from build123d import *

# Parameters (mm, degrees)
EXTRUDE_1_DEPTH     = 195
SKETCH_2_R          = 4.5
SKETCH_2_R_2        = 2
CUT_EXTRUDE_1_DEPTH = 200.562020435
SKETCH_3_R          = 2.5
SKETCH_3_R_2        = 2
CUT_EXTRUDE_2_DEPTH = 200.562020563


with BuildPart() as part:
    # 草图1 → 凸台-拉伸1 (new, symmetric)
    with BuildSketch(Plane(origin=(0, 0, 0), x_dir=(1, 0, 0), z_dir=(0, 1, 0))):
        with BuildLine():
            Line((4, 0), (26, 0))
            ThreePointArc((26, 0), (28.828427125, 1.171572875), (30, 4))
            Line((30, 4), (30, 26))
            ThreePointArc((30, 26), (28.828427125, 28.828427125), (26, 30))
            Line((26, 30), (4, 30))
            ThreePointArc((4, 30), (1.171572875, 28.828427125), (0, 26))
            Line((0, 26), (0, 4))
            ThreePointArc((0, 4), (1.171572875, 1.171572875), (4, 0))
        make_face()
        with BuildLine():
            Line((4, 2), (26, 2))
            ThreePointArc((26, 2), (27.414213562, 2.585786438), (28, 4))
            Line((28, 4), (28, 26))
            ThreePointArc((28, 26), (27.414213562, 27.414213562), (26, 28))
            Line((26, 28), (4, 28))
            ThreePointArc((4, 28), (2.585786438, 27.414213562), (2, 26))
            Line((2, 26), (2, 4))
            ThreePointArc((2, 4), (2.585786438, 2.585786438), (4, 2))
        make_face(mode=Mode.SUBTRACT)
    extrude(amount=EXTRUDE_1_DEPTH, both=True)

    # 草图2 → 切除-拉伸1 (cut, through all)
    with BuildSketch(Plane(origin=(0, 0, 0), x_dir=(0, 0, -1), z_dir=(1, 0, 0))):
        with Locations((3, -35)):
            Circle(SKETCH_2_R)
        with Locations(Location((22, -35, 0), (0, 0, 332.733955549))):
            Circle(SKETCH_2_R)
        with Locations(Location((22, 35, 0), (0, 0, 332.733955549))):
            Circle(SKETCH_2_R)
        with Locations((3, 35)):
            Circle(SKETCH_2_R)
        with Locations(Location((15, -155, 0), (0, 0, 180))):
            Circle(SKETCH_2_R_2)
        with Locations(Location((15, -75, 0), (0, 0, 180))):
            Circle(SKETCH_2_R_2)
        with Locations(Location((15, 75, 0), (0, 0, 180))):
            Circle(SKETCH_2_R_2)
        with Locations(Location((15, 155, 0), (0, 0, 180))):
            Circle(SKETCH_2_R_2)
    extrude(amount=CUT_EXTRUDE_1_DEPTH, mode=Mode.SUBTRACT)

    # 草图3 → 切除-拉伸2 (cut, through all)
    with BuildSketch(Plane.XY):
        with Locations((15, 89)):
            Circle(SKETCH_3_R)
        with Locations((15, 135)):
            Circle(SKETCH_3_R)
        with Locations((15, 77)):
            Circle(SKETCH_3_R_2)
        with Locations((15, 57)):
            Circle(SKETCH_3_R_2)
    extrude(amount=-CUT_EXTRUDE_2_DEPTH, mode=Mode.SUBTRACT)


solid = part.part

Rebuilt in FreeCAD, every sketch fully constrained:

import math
import FreeCAD as App
import Part
import Sketcher

V = App.Vector
Q = App.Units.Quantity

doc = App.newDocument("Part")
body = doc.addObject("PartDesign::Body", "Body")

# Sketch on XZ plane
sketch1 = body.newObject("Sketcher::SketchObject", "Sketch")
sketch1.AttachmentSupport = (doc.getObject("XZ_Plane"), [""])
sketch1.MapMode = "FlatFace"
sketch1.addGeometry([
    Part.LineSegment(V(4, 0, 0), V(26, 0, 0)),  # 0
    Part.ArcOfCircle(Part.Circle(V(26, -4, 0), V(0, 0, 1), 4), math.radians(0), math.radians(90)),  # 1
    Part.LineSegment(V(30, -4, 0), V(30, -26, 0)),  # 2
    Part.ArcOfCircle(Part.Circle(V(26, -26, 0), V(0, 0, 1), 4), math.radians(-90), math.radians(0)),  # 3
    Part.LineSegment(V(26, -30, 0), V(4, -30, 0)),  # 4
    Part.ArcOfCircle(Part.Circle(V(4, -26, 0), V(0, 0, 1), 4), math.radians(180), math.radians(270)),  # 5
    Part.LineSegment(V(0, -26, 0), V(0, -4, 0)),  # 6
    Part.ArcOfCircle(Part.Circle(V(4, -4, 0), V(0, 0, 1), 4), math.radians(90), math.radians(180)),  # 7
    Part.LineSegment(V(26, -2, 0), V(4, -2, 0)),  # 8
    Part.ArcOfCircle(Part.Circle(V(4, -4, 0), V(0, 0, 1), 2), math.radians(90), math.radians(180)),  # 9
    Part.LineSegment(V(2, -4, 0), V(2, -26, 0)),  # 10
    Part.ArcOfCircle(Part.Circle(V(4, -26, 0), V(0, 0, 1), 2), math.radians(-180), math.radians(-90)),  # 11
    Part.LineSegment(V(4, -28, 0), V(26, -28, 0)),  # 12
    Part.ArcOfCircle(Part.Circle(V(26, -26, 0), V(0, 0, 1), 2), math.radians(-90), math.radians(0)),  # 13
    Part.LineSegment(V(28, -26, 0), V(28, -4, 0)),  # 14
    Part.ArcOfCircle(Part.Circle(V(26, -4, 0), V(0, 0, 1), 2), math.radians(0), math.radians(90)),  # 15
], False)
sketch1.addConstraint([
    Sketcher.Constraint("Tangent", 0, 2, 1, 2),
    Sketcher.Constraint("Tangent", 1, 1, 2, 1),
    Sketcher.Constraint("Tangent", 2, 2, 3, 2),
    Sketcher.Constraint("Tangent", 3, 1, 4, 1),
    Sketcher.Constraint("Tangent", 4, 2, 5, 2),
    Sketcher.Constraint("Tangent", 5, 1, 6, 1),
    Sketcher.Constraint("Tangent", 6, 2, 7, 2),
    Sketcher.Constraint("Tangent", 7, 1, 0, 1),
    Sketcher.Constraint("Tangent", 8, 2, 9, 1),
    Sketcher.Constraint("Tangent", 9, 2, 10, 1),
    Sketcher.Constraint("Tangent", 10, 2, 11, 1),
    Sketcher.Constraint("Tangent", 11, 2, 12, 1),
    Sketcher.Constraint("Tangent", 12, 2, 13, 1),
    Sketcher.Constraint("Tangent", 13, 2, 14, 1),
    Sketcher.Constraint("Tangent", 14, 2, 15, 1),
    Sketcher.Constraint("Tangent", 15, 2, 8, 1),
    Sketcher.Constraint("Horizontal", 0),
    Sketcher.Constraint("Vertical", 2),
    Sketcher.Constraint("Horizontal", 4),
    Sketcher.Constraint("Vertical", 6),
    Sketcher.Constraint("Horizontal", 8),
    Sketcher.Constraint("Vertical", 10),
    Sketcher.Constraint("Horizontal", 12),
    Sketcher.Constraint("Vertical", 14),
    Sketcher.Constraint("Coincident", 9, 3, 7, 3),
    Sketcher.Constraint("Coincident", 11, 3, 5, 3),
    Sketcher.Constraint("Coincident", 13, 3, 3, 3),
    Sketcher.Constraint("Equal", 1, 3),
    Sketcher.Constraint("Equal", 3, 5),
    Sketcher.Constraint("Equal", 5, 7),
    Sketcher.Constraint("Equal", 13, 15),
    Sketcher.Constraint("PointOnObject", 0, 2, -1),
    Sketcher.Constraint("PointOnObject", 5, 1, -2),
    Sketcher.Constraint("Equal", 12, 2),
    Sketcher.Constraint("Radius", 1, Q("4 mm")),
    Sketcher.Constraint("Radius", 9, Q("2 mm")),
    Sketcher.Constraint("DistanceX", 0, 1, 0, 2, Q("22 mm")),
])
pad1 = body.newObject("PartDesign::Pad", "Pad")
pad1.Profile = sketch1
pad1.Length = 390
pad1.Midplane = True

# Sketch on YZ plane
sketch2 = body.newObject("Sketcher::SketchObject", "Sketch001")
sketch2.AttachmentSupport = (doc.getObject("YZ_Plane"), [""])
sketch2.MapMode = "FlatFace"
sketch2.addGeometry([
    Part.Circle(V(-35, -3, 0), V(0, 0, 1), 4.5),  # 0
    Part.Circle(V(-35, -22, 0), V(0, 0, 1), 4.5),  # 1
    Part.Circle(V(35, -22, 0), V(0, 0, 1), 4.5),  # 2
    Part.Circle(V(35, -3, 0), V(0, 0, 1), 4.5),  # 3
    Part.Circle(V(-155, -15, 0), V(0, 0, 1), 2),  # 4
    Part.Circle(V(-75, -15, 0), V(0, 0, 1), 2),  # 5
    Part.Circle(V(75, -15, 0), V(0, 0, 1), 2),  # 6
    Part.Circle(V(155, -15, 0), V(0, 0, 1), 2),  # 7
], False)
sketch2.addConstraint([
    Sketcher.Constraint("Equal", 0, 1),
    Sketcher.Constraint("Equal", 1, 2),
    Sketcher.Constraint("Equal", 2, 3),
    Sketcher.Constraint("Equal", 4, 5),
    Sketcher.Constraint("Equal", 5, 6),
    Sketcher.Constraint("Equal", 6, 7),
    Sketcher.Constraint("Symmetric", 1, 3, 2, 3, -2),
    Sketcher.Constraint("Symmetric", 0, 3, 3, 3, -2),
    Sketcher.Constraint("Symmetric", 5, 3, 6, 3, -2),
    Sketcher.Constraint("Symmetric", 4, 3, 7, 3, -2),
    Sketcher.Constraint("Horizontal", 4, 3, 5, 3),
    Sketcher.Constraint("Vertical", 0, 3, 1, 3),
    Sketcher.Constraint("Diameter", 0, Q("9 mm")),
    Sketcher.Constraint("Diameter", 4, Q("4 mm")),
    Sketcher.Constraint("DistanceX", 0, 3, -1, 1, Q("35 mm")),
    Sketcher.Constraint("DistanceY", 0, 3, -1, 1, Q("3 mm")),
    Sketcher.Constraint("DistanceY", 1, 3, -1, 1, Q("22 mm")),
    Sketcher.Constraint("DistanceX", 4, 3, -1, 1, Q("155 mm")),
    Sketcher.Constraint("DistanceY", 4, 3, -1, 1, Q("15 mm")),
    Sketcher.Constraint("DistanceX", 5, 3, -1, 1, Q("75 mm")),
])
pocket1 = body.newObject("PartDesign::Pocket", "Pocket")
pocket1.Profile = sketch2
pocket1.Type = "ThroughAll"
pocket1.Reversed = True

# Sketch on XY plane
sketch3 = body.newObject("Sketcher::SketchObject", "Sketch002")
sketch3.AttachmentSupport = (doc.getObject("XY_Plane"), [""])
sketch3.MapMode = "FlatFace"
sketch3.addGeometry([
    Part.Circle(V(15, 89, 0), V(0, 0, 1), 2.5),
    Part.Circle(V(15, 135, 0), V(0, 0, 1), 2.5),
    Part.Circle(V(15, 77, 0), V(0, 0, 1), 2),
    Part.Circle(V(15, 57, 0), V(0, 0, 1), 2),
], False)
sketch3.addConstraint([
    Sketcher.Constraint("Equal", 0, 1),
    Sketcher.Constraint("Equal", 2, 3),
    Sketcher.Constraint("Vertical", 0, 3, 1, 3),
    Sketcher.Constraint("Vertical", 1, 3, 2, 3),
    Sketcher.Constraint("Vertical", 2, 3, 3, 3),
    Sketcher.Constraint("Diameter", 0, Q("5 mm")),
    Sketcher.Constraint("Diameter", 2, Q("4 mm")),
    Sketcher.Constraint("DistanceX", -1, 1, 0, 3, Q("15 mm")),
    Sketcher.Constraint("DistanceY", -1, 1, 0, 3, Q("89 mm")),
    Sketcher.Constraint("DistanceY", -1, 1, 1, 3, Q("135 mm")),
    Sketcher.Constraint("DistanceY", -1, 1, 2, 3, Q("77 mm")),
    Sketcher.Constraint("DistanceY", -1, 1, 3, 3, Q("57 mm")),
])
pocket2 = body.newObject("PartDesign::Pocket", "Pocket001")
pocket2.Profile = sketch3
pocket2.Type = "ThroughAll"

doc.recompute()
